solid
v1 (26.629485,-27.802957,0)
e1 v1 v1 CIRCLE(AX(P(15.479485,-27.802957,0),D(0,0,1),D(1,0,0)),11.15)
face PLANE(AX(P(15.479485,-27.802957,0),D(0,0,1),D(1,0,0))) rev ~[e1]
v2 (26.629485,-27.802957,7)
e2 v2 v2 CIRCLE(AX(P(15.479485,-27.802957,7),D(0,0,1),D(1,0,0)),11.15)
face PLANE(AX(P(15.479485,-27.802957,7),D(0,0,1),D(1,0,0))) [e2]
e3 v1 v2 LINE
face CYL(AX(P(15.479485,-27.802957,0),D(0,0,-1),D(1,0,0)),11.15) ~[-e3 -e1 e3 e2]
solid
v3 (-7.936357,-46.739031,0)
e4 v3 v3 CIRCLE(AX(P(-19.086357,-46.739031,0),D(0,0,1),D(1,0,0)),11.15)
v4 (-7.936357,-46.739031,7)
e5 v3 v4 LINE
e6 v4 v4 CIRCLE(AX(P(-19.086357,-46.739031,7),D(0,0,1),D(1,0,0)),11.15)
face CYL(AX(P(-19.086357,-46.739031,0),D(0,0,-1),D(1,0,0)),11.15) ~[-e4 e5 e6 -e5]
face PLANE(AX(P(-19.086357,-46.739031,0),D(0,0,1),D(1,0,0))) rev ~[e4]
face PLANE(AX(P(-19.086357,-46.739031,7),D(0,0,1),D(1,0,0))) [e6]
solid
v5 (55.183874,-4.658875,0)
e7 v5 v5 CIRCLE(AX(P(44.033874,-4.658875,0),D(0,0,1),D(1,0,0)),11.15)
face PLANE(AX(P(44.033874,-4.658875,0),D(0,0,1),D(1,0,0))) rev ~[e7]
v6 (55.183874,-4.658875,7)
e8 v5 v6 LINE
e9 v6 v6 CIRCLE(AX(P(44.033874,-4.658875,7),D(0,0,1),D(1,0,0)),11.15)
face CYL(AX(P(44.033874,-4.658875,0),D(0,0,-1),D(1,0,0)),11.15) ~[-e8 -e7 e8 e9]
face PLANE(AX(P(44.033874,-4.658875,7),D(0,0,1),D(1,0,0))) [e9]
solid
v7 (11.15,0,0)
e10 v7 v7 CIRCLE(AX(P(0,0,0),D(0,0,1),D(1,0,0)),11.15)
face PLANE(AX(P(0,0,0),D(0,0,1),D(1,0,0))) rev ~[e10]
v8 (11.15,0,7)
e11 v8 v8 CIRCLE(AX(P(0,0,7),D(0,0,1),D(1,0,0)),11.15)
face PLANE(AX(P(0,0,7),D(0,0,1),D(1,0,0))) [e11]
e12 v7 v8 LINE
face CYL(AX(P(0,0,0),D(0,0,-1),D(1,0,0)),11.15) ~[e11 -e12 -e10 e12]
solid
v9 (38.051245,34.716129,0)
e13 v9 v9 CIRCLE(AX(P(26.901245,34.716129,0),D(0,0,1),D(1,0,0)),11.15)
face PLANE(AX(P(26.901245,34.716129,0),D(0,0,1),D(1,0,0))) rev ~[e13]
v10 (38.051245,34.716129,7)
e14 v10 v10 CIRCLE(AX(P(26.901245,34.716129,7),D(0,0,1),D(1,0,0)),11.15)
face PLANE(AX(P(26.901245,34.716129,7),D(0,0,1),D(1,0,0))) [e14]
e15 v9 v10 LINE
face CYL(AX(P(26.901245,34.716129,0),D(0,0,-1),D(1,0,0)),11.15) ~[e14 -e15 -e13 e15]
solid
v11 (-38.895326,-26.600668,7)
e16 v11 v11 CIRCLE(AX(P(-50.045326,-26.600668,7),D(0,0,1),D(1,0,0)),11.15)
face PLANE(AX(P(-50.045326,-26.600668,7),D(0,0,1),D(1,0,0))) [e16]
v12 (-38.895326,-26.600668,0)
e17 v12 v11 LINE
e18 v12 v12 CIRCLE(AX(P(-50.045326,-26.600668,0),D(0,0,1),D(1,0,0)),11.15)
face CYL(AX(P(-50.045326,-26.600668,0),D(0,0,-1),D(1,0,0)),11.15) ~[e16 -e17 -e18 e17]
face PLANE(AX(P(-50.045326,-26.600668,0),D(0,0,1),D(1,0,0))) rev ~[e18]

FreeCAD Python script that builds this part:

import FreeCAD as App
import Part
import Sketcher

V = App.Vector

doc = App.newDocument("Part")
params = doc.addObject("Spreadsheet::Sheet", "Params")
for row, (alias, value) in enumerate([
    ("sketch1_diameter", "22.3 mm"),
    ("pad1_length", "7 mm"),
], start=1):
    params.set(f"A{row}", alias)
    params.set(f"B{row}", "=" + value)
    params.setAlias(f"B{row}", alias)

body = doc.addObject("PartDesign::Body", "Body")
body.AllowCompound = True

# Sketch on XY plane
sketch1 = body.newObject("Sketcher::SketchObject", "Sketch")
sketch1.AttachmentSupport = (doc.getObject("XY_Plane"), [""])
sketch1.MapMode = "FlatFace"
sketch1.addGeometry([
    Part.Circle(V(0, 0, 0), V(0, 0, 1), 11),  # 0
    Part.Circle(V(27, 35, 0), V(0, 0, 1), 11),  # 1
    Part.Circle(V(-50, -27, 0), V(0, 0, 1), 11),  # 2
    Part.Circle(V(-19, -47, 0), V(0, 0, 1), 11),  # 3
    Part.Circle(V(15, -28, 0), V(0, 0, 1), 11),  # 4
    Part.Circle(V(44, -5, 0), V(0, 0, 1), 11),  # 5
], False)
sketch1.addConstraint([
    Sketcher.Constraint("Coincident", 0, 3, -1, 1),
    Sketcher.Constraint("Equal", 0, 1),
    Sketcher.Constraint("Equal", 1, 2),
    Sketcher.Constraint("Equal", 2, 3),
    Sketcher.Constraint("Equal", 3, 4),
    Sketcher.Constraint("Equal", 4, 5),
    Sketcher.Constraint("Diameter", 0, 22.3),
    Sketcher.Constraint("DistanceX", 3, 3, 1, 3, 45.987602),
    Sketcher.Constraint("DistanceX", 2, 3, 5, 3, 94.0792),
    Sketcher.Constraint("DistanceY", -1, 1, 1, 3, 34.716129),
    Sketcher.Constraint("DistanceY", 3, 3, -1, 1, 46.739031),
    Sketcher.Constraint("DistanceX", 2, 3, 1, 3, 76.946571),
    Sketcher.Constraint("DistanceX", 4, 3, 1, 3, 11.42176),
    Sketcher.Constraint("DistanceY", 4, 3, 2, 3, 1.202289),
    Sketcher.Constraint("DistanceY", 4, 3, 5, 3, 23.144082),
    Sketcher.Constraint("DistanceX", -1, 1, 1, 3, 26.901245),
    Sketcher.Constraint("DistanceY", 2, 3, -1, 1, 26.600668),
])
sketch1.setExpression("Constraints[6]", "Params.sketch1_diameter")
pad1 = body.newObject("PartDesign::Pad", "Pad")
pad1.Profile = sketch1
pad1.setExpression("Length", "Params.pad1_length")

doc.recompute()
